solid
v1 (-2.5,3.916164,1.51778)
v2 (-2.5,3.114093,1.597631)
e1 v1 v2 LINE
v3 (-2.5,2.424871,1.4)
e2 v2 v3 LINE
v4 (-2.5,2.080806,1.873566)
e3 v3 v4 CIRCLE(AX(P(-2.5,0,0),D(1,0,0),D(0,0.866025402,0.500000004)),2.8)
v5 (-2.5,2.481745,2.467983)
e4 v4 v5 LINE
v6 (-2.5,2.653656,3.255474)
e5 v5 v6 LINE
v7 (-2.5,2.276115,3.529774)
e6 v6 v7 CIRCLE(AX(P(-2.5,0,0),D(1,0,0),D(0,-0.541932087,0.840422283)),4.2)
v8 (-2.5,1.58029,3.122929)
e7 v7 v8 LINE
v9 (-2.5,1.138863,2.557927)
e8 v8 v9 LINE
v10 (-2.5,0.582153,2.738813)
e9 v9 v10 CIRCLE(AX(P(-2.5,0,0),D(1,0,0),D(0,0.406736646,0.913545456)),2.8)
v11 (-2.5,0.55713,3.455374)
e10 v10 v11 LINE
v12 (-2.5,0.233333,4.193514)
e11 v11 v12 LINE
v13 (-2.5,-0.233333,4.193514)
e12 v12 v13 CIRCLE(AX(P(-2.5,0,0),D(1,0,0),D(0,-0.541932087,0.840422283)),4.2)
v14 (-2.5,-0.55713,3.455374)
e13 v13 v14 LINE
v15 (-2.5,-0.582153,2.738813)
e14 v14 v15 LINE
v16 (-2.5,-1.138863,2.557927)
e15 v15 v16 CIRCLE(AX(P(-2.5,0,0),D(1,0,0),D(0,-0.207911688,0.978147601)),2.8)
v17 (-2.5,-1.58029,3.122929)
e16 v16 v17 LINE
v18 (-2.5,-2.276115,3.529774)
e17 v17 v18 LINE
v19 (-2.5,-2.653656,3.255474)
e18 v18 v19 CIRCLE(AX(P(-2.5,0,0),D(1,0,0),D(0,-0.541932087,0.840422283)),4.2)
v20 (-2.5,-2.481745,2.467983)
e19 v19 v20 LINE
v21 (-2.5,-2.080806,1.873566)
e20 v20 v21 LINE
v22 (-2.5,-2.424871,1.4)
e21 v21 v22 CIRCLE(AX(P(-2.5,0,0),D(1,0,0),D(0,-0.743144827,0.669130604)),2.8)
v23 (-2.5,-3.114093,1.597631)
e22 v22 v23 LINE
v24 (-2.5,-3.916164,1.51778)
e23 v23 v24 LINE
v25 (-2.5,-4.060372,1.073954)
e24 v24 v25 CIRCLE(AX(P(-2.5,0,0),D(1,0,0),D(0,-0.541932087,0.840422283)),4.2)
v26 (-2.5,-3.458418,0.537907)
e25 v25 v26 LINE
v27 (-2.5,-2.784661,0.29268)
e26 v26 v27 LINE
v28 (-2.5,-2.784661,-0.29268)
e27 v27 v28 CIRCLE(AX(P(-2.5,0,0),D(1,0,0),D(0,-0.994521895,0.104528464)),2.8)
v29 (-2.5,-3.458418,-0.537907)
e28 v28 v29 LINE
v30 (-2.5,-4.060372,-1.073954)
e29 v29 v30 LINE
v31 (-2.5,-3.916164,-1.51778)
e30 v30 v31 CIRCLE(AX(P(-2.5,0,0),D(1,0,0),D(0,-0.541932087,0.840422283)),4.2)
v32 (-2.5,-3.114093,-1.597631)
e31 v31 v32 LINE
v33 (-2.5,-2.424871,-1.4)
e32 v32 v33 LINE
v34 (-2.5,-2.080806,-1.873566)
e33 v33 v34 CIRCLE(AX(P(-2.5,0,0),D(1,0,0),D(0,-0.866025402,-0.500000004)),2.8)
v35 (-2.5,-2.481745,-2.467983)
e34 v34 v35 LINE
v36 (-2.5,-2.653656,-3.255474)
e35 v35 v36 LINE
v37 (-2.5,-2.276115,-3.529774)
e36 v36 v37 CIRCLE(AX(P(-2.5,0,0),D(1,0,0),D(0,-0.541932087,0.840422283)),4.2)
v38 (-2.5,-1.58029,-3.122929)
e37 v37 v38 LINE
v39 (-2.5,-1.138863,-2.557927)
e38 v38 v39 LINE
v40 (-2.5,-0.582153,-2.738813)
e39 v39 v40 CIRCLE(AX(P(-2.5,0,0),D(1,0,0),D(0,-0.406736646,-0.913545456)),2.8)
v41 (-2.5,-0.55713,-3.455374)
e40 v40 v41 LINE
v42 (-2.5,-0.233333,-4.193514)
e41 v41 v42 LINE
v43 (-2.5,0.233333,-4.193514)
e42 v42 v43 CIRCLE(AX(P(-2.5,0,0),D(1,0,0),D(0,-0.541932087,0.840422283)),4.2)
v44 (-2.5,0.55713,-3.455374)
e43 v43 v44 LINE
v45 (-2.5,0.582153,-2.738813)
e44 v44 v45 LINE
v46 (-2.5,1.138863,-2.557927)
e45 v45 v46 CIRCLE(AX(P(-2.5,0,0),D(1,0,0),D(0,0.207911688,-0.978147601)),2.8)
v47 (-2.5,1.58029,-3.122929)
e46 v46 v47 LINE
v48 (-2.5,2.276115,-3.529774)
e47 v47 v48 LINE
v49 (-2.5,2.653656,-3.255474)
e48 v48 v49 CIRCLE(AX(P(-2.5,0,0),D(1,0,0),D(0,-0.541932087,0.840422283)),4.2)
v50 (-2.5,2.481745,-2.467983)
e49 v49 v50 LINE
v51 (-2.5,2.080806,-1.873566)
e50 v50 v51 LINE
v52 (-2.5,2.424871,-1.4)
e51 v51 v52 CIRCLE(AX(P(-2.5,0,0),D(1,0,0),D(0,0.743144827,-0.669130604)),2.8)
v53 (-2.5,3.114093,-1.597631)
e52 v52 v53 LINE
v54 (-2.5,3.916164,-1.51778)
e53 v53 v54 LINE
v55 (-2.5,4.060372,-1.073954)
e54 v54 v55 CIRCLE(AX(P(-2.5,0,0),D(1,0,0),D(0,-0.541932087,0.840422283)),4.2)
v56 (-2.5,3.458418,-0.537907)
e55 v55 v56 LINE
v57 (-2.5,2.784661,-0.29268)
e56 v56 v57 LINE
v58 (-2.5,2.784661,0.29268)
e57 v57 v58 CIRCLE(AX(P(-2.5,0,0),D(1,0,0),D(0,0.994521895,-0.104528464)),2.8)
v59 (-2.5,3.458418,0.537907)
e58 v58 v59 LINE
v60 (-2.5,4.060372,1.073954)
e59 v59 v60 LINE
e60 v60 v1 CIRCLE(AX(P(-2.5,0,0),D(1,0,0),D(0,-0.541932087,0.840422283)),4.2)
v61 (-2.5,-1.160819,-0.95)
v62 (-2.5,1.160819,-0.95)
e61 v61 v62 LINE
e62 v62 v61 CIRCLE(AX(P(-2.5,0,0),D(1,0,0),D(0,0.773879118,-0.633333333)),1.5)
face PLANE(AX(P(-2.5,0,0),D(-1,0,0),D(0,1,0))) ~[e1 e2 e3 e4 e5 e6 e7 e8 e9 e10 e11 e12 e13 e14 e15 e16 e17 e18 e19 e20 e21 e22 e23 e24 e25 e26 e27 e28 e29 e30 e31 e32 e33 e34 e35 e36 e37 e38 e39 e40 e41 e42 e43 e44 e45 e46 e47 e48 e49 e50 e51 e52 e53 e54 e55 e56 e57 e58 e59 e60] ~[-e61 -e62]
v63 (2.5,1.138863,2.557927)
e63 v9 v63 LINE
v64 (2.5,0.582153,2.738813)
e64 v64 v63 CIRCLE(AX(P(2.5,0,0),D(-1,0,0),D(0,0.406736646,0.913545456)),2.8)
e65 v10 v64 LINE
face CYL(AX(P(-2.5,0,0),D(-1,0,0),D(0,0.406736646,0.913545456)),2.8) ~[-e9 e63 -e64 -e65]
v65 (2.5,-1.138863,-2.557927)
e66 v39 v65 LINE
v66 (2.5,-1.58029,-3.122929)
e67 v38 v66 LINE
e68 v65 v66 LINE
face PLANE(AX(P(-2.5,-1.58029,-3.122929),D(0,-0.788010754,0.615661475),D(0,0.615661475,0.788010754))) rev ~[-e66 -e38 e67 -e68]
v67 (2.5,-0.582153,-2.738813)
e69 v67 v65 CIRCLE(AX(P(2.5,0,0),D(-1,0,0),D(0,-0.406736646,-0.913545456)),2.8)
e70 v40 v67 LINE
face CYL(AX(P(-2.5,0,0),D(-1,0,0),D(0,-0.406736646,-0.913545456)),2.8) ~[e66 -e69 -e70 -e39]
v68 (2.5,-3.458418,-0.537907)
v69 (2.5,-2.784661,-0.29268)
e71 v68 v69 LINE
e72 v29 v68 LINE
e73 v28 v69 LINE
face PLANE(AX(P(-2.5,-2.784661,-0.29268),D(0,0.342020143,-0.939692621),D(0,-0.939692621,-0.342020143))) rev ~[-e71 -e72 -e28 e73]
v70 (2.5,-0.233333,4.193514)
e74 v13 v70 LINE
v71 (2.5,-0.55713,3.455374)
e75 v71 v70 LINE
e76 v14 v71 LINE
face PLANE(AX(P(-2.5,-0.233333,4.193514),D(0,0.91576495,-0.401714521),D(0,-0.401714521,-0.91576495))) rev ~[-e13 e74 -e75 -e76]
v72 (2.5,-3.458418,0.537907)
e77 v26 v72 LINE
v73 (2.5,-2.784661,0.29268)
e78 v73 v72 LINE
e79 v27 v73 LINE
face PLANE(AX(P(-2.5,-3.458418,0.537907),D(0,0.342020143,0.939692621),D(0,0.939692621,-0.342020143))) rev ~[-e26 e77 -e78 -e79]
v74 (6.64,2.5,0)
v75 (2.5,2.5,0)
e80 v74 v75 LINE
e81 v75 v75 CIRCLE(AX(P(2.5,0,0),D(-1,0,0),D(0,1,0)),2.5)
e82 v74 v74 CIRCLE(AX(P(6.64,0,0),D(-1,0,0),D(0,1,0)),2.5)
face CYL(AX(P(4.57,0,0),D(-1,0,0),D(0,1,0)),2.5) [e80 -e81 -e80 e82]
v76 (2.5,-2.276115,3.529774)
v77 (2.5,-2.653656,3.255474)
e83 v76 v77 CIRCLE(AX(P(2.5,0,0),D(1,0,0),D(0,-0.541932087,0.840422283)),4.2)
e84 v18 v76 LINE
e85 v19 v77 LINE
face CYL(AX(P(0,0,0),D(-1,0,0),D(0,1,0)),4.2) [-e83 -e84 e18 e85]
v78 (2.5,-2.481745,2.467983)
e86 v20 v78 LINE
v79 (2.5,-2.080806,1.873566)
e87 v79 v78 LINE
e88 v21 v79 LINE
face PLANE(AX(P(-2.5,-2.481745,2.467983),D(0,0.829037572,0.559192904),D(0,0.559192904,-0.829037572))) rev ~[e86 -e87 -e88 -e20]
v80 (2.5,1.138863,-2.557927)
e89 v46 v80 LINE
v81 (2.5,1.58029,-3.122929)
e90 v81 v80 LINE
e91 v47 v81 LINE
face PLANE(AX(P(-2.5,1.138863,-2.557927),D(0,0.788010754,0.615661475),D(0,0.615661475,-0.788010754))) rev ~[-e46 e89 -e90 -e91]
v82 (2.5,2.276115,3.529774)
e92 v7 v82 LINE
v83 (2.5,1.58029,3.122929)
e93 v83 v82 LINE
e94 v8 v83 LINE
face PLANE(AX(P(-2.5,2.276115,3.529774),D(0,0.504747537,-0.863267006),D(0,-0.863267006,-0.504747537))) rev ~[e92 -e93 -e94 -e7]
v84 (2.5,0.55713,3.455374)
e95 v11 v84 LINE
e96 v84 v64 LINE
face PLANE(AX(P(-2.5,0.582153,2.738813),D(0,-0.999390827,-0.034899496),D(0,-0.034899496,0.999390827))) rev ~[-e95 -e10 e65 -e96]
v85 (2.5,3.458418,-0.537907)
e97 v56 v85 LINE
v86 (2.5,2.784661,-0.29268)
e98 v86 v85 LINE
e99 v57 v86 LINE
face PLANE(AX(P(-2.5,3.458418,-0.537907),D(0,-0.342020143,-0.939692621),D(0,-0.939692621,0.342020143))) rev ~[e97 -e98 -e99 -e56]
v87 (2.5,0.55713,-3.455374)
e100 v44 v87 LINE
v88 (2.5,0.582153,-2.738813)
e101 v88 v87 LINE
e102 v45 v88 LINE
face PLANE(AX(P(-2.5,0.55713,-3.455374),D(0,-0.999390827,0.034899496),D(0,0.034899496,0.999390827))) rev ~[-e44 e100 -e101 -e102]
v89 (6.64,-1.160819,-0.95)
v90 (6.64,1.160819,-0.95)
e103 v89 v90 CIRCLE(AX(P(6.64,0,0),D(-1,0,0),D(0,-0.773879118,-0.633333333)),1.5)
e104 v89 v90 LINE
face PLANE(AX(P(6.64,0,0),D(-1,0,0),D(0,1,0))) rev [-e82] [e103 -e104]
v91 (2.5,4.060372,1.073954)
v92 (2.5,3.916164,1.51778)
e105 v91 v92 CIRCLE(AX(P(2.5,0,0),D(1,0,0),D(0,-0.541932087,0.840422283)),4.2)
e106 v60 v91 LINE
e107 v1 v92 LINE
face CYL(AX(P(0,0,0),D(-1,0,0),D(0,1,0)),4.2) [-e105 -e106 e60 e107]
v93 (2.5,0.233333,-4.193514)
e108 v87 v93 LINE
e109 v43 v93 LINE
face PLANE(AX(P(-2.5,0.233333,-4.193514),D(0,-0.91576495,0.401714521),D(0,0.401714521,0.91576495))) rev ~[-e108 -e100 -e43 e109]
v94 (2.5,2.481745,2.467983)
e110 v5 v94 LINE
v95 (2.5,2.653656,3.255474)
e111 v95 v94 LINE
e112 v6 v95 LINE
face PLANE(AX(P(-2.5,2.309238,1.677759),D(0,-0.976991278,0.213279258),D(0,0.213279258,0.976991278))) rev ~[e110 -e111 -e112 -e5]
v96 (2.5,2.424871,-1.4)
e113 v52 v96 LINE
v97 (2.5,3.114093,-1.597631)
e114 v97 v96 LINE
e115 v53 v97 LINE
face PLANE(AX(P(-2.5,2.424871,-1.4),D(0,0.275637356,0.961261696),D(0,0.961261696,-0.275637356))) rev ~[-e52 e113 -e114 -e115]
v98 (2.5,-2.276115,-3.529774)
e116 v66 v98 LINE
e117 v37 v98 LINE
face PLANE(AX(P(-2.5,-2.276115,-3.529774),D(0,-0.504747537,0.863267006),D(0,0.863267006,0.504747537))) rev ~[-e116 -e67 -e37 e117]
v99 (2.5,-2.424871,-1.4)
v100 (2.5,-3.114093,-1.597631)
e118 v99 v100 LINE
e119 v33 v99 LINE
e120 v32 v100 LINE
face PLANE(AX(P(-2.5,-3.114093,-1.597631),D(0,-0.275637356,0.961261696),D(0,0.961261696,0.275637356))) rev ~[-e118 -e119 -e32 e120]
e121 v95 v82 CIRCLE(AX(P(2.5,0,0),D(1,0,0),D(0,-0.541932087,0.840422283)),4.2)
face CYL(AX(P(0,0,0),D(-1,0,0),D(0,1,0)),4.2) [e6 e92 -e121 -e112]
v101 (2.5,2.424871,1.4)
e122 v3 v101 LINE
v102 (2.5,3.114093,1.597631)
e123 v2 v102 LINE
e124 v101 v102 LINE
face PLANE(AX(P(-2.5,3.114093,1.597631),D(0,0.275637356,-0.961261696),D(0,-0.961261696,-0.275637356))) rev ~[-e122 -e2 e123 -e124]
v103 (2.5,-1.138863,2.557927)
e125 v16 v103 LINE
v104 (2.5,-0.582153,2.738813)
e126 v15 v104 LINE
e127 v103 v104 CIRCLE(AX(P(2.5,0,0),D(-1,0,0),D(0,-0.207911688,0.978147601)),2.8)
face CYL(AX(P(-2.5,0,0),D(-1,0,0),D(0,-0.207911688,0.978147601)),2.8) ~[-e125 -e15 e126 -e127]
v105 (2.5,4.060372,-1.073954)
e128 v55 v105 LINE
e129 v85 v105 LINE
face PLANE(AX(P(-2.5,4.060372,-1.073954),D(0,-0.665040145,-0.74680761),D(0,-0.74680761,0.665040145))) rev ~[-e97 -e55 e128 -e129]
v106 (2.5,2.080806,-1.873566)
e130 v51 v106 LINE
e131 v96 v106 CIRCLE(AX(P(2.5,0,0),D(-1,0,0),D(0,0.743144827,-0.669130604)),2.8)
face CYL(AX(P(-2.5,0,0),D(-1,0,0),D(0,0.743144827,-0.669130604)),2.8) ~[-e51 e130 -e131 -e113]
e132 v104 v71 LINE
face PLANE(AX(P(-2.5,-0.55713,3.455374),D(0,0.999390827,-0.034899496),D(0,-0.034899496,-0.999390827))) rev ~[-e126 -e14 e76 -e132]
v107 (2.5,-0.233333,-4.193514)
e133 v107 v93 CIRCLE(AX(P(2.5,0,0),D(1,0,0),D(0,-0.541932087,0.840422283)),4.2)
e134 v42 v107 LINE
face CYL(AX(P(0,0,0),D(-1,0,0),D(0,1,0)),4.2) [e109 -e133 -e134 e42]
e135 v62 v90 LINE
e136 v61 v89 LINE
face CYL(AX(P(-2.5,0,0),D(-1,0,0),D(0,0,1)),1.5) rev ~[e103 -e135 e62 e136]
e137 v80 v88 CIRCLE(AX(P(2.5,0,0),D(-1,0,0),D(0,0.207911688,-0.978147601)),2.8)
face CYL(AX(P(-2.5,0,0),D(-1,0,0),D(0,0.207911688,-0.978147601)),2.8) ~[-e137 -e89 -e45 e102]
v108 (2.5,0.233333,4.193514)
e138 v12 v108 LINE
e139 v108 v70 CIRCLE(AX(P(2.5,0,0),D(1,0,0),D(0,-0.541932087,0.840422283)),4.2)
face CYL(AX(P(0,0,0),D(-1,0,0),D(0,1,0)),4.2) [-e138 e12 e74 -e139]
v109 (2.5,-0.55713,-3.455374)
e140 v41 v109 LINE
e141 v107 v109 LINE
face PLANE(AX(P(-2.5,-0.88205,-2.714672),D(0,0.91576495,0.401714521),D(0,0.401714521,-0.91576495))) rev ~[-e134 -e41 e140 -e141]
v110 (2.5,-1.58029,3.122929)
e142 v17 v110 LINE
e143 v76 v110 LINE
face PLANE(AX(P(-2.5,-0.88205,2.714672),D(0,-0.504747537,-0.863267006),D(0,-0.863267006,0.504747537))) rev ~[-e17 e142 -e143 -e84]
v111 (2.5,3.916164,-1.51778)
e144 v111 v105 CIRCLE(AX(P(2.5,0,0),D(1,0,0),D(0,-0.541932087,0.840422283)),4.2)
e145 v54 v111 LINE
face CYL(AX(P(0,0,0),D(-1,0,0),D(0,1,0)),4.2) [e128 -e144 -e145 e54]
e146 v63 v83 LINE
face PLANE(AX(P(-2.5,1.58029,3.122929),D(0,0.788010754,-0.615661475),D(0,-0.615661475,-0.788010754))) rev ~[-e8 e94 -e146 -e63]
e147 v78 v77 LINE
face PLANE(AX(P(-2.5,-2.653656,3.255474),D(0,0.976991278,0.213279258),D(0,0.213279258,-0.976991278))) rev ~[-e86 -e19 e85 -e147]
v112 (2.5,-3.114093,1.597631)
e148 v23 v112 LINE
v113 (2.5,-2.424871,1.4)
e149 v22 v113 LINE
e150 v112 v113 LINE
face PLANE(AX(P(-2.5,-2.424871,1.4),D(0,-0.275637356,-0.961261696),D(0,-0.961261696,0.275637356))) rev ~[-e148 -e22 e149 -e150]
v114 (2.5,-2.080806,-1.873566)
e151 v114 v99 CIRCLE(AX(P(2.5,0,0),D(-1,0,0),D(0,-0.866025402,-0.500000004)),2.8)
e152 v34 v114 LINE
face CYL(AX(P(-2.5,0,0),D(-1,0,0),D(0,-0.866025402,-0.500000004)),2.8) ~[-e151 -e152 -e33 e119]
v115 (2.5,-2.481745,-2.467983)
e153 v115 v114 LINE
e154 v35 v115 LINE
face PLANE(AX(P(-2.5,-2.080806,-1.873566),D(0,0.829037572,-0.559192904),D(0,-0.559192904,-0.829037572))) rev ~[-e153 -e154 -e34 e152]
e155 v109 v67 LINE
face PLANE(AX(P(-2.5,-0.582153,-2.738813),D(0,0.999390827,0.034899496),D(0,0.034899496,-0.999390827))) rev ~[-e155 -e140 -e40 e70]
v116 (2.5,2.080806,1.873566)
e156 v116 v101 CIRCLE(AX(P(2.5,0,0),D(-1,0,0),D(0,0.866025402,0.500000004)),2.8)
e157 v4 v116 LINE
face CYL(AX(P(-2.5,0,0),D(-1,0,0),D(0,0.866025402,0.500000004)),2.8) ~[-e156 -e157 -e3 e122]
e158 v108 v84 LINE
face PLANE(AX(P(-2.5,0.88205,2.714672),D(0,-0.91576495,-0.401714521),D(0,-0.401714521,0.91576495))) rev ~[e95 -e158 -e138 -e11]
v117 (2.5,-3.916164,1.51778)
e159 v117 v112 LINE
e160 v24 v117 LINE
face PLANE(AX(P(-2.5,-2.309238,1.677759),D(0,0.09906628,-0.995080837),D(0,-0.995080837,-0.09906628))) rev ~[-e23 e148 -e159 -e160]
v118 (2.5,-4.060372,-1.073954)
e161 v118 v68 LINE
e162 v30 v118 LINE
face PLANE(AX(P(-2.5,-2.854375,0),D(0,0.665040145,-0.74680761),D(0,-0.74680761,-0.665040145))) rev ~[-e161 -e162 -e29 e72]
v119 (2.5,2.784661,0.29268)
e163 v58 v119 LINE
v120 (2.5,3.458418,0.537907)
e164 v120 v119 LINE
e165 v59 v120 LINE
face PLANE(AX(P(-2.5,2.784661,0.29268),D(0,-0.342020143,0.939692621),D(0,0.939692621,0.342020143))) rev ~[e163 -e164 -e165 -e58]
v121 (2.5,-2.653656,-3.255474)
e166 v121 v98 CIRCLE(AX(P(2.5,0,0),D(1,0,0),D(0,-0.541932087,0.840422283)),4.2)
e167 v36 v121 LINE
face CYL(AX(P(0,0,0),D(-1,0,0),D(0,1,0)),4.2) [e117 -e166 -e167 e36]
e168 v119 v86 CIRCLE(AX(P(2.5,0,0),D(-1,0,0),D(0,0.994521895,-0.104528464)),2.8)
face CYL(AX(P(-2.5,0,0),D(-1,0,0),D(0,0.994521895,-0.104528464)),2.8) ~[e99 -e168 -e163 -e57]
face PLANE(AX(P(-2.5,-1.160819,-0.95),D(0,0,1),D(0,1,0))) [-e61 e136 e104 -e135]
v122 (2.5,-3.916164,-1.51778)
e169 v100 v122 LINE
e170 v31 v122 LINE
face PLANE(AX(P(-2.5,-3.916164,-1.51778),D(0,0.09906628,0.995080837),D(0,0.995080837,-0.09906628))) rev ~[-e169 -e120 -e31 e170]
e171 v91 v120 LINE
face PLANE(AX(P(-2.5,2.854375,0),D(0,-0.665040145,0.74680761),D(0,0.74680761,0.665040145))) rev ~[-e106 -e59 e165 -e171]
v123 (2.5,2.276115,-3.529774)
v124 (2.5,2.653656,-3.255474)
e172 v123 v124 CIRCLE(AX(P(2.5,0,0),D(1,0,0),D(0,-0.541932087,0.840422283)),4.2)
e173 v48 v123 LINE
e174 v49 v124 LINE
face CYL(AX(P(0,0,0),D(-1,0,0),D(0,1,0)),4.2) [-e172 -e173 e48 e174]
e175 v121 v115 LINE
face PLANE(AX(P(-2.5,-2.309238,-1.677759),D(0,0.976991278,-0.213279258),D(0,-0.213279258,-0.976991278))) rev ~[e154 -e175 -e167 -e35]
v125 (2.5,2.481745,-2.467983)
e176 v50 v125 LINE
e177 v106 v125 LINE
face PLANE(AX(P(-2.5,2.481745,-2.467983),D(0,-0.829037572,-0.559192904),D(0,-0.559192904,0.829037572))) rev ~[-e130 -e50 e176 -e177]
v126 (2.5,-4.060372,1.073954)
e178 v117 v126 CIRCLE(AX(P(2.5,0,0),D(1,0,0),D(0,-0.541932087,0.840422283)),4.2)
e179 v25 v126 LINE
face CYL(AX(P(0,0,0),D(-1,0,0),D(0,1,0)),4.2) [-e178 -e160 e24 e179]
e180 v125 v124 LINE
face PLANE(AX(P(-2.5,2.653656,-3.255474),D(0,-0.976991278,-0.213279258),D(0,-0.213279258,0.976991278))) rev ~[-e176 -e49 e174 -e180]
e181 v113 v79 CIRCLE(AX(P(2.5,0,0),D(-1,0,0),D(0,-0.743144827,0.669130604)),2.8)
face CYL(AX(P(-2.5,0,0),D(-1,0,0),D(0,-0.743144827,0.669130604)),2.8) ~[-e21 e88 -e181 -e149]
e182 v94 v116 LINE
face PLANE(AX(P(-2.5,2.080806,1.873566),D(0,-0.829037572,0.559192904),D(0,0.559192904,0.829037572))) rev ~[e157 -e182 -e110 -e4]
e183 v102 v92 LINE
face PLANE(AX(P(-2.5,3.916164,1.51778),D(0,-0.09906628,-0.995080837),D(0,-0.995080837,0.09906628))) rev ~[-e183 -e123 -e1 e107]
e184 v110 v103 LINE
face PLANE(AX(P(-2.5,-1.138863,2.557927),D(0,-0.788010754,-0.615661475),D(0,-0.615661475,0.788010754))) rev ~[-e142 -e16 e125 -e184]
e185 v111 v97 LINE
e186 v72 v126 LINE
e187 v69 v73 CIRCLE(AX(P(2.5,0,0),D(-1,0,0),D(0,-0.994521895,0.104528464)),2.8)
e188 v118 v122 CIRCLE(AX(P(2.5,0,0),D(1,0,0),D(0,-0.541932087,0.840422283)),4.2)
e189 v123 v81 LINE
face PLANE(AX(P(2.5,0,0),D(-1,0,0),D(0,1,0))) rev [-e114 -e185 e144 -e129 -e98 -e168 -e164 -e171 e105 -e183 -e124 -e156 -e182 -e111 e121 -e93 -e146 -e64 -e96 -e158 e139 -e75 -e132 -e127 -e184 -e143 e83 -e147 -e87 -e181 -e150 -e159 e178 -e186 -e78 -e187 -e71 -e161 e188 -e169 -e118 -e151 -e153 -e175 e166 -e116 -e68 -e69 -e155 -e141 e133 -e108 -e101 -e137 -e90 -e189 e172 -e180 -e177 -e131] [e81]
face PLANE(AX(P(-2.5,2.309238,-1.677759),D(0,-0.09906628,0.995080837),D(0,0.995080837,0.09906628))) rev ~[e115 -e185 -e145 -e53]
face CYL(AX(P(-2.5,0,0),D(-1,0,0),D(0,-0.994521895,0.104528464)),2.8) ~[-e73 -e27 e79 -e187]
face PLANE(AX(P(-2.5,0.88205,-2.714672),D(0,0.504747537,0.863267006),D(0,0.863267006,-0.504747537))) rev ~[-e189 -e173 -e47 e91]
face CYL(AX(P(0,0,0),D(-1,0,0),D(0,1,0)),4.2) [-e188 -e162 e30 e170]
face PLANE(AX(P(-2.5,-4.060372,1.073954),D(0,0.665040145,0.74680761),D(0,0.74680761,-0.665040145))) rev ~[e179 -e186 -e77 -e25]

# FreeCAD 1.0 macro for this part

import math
import FreeCAD as App
import Part
import Sketcher

V = App.Vector
Q = App.Units.Quantity

doc = App.newDocument("Part")
body = doc.addObject("PartDesign::Body", "Body")

# Sketch on XY plane
sketch1 = body.newObject("Sketcher::SketchObject", "Sketch")
sketch1.AttachmentSupport = (doc.getObject("XY_Plane"), [""])
sketch1.MapMode = "FlatFace"
sketch1.addGeometry([
    Part.LineSegment(V(2.5, 4.2, 0), V(2.5, 0, 0)),
    Part.LineSegment(V(2.5, 0, 0), V(-2.5, 0, 0)),
    Part.LineSegment(V(-2.5, 0, 0), V(-2.5, 4.2, 0)),
    Part.LineSegment(V(-2.5, 4.2, 0), V(2.5, 4.2, 0)),
], False)
sketch1.addConstraint([
    Sketcher.Constraint("Coincident", 0, 2, 1, 1),
    Sketcher.Constraint("Coincident", 1, 2, 2, 1),
    Sketcher.Constraint("Coincident", 2, 2, 3, 1),
    Sketcher.Constraint("Coincident", 3, 2, 0, 1),
    Sketcher.Constraint("Vertical", 0),
    Sketcher.Constraint("Horizontal", 1),
    Sketcher.Constraint("Vertical", 2),
    Sketcher.Constraint("Horizontal", 3),
    Sketcher.Constraint("Symmetric", 0, 2, 1, 2, -1, 1),
    Sketcher.Constraint("DistanceX", 1, 2, 1, 1, Q("5 mm")),
    Sketcher.Constraint("DistanceY", 0, 2, 0, 1, Q("4.2 mm")),
])
revolution = body.newObject("PartDesign::Revolution", "Revolution")
revolution.Profile = sketch1
revolution.ReferenceAxis = (sketch1, ["H_Axis"])
revolution.Angle = 360

# Sketch on YZ plane
sketch2 = body.newObject("Sketcher::SketchObject", "Sketch001")
sketch2.AttachmentSupport = (doc.getObject("YZ_Plane"), [""])
sketch2.MapMode = "FlatFace"
sketch2.AttachmentOffset = App.Placement(V(0, 0, -2.5), App.Rotation())
sketch2.addGeometry([
    Part.LineSegment(V(-0.2, 4.2, 0), V(-0.9, 2.7, 0)),
    Part.LineSegment(V(-0.9, 2.7, 0), V(-2.3, 3.5, 0)),
    Part.ArcOfCircle(Part.Circle(V(0, 0, 0), V(0, 0, 1), 4.2), math.radians(93), math.radians(123)),
], False)
sketch2.addConstraint([
    Sketcher.Constraint("Coincident", 0, 2, 1, 1),
    Sketcher.Constraint("Coincident", 1, 2, 2, 2),
    Sketcher.Constraint("Coincident", 2, 1, 0, 1),
    Sketcher.Constraint("Coincident", 2, 3, -1, 1),
    Sketcher.Constraint("Equal", 0, 1),
    Sketcher.Constraint("Radius", 2, Q("4.2 mm")),
    Sketcher.Constraint("DistanceY", 0, 2, 1, 2, Q("0.815102 mm")),
    Sketcher.Constraint("Distance", 0, Q("1.614871 mm")),
    Sketcher.Constraint("DistanceX", 0, 2, -1, 1, Q("0.88205 mm")),
])
pocket1 = body.newObject("PartDesign::Pocket", "Pocket")
pocket1.Profile = sketch2
pocket1.Type = "ThroughAll"
pocket1.Reversed = True

# Sketch on YZ plane
sketch3 = body.newObject("Sketcher::SketchObject", "Sketch002")
sketch3.AttachmentSupport = (doc.getObject("YZ_Plane"), [""])
sketch3.MapMode = "FlatFace"
sketch3.AttachmentOffset = App.Placement(V(0, 0, -2.5), App.Rotation())
sketch3.addGeometry([
    Part.LineSegment(V(-1.1, 2.6, 0), V(-1.6, 3.1, 0)),  # 0
    Part.LineSegment(V(-1.6, 3.1, 0), V(-0.9, 2.7, 0)),  # 1
    Part.LineSegment(V(-0.9, 2.7, 0), V(-0.6, 3.5, 0)),  # 2
    Part.LineSegment(V(-0.6, 3.5, 0), V(-0.6, 2.7, 0)),  # 3
    Part.ArcOfCircle(Part.Circle(V(0, 0, 0), V(0, 0, 1), 2.8), math.radians(102), math.radians(114)),  # 4
], False)
sketch3.addConstraint([
    Sketcher.Constraint("Coincident", 0, 2, 1, 1),
    Sketcher.Constraint("Coincident", 1, 2, 2, 1),
    Sketcher.Constraint("Coincident", 2, 2, 3, 1),
    Sketcher.Constraint("Coincident", 3, 2, 4, 1),
    Sketcher.Constraint("Coincident", 4, 2, 0, 1),
    Sketcher.Constraint("Coincident", 4, 3, -1, 1),
    Sketcher.Constraint("Equal", 1, 2),
    Sketcher.Constraint("Equal", 0, 3),
    Sketcher.Constraint("Radius", 4, Q("2.8 mm")),
    Sketcher.Constraint("Angle", 0, Q("128 deg")),
    Sketcher.Constraint("Angle", 3, Q("-92 deg")),
    Sketcher.Constraint("DistanceY", 4, 2, 0, 2, Q("0.565001 mm")),
    Sketcher.Constraint("DistanceY", 1, 2, 2, 2, Q("0.740702 mm")),
    Sketcher.Constraint("DistanceX", 0, 2, -1, 1, Q("1.58029 mm")),
    Sketcher.Constraint("DistanceX", 1, 2, -1, 1, Q("0.88205 mm")),
])
pocket2 = body.newObject("PartDesign::Pocket", "Pocket001")
pocket2.Profile = sketch3
pocket2.Type = "ThroughAll"
pocket2.Reversed = True

# Sketch on YZ plane
sketch4 = body.newObject("Sketcher::SketchObject", "Sketch003")
sketch4.AttachmentSupport = (doc.getObject("YZ_Plane"), [""])
sketch4.MapMode = "FlatFace"
sketch4.AttachmentOffset = App.Placement(V(0, 0, -2.5), App.Rotation())
sketch4.addGeometry([
    Part.LineSegment(V(-2.7, 3.3, 0), V(-2.3, 1.7, 0)),
    Part.LineSegment(V(-2.3, 1.7, 0), V(-3.9, 1.5, 0)),
    Part.ArcOfCircle(Part.Circle(V(0, 0, 0), V(0, 0, 1), 4.2), math.radians(129), math.radians(159)),
], False)
sketch4.addConstraint([
    Sketcher.Constraint("Coincident", 0, 2, 1, 1),
    Sketcher.Constraint("Coincident", 1, 2, 2, 2),
    Sketcher.Constraint("Coincident", 2, 1, 0, 1),
    Sketcher.Constraint("Coincident", 2, 3, -1, 1),
    Sketcher.Constraint("Equal", 0, 1),
    Sketcher.Constraint("Radius", 2, Q("4.2 mm")),
    Sketcher.Constraint("Distance", 0, Q("1.614871 mm")),
    Sketcher.Constraint("DistanceY", -1, 1, 0, 2, Q("1.677759 mm")),
    Sketcher.Constraint("DistanceY", -1, 1, 1, 2, Q("1.51778 mm")),
])
pocket3 = body.newObject("PartDesign::Pocket", "Pocket002")
pocket3.Profile = sketch4
pocket3.Type = "ThroughAll"
pocket3.Reversed = True

# Sketch on YZ plane
sketch5 = body.newObject("Sketcher::SketchObject", "Sketch004")
sketch5.AttachmentSupport = (doc.getObject("YZ_Plane"), [""])
sketch5.MapMode = "FlatFace"
sketch5.AttachmentOffset = App.Placement(V(0, 0, -2.5), App.Rotation())
sketch5.addGeometry([
    Part.LineSegment(V(-2.4, 1.4, 0), V(-3.1, 1.6, 0)),  # 0
    Part.LineSegment(V(-3.1, 1.6, 0), V(-2.3, 1.7, 0)),  # 1
    Part.LineSegment(V(-2.3, 1.7, 0), V(-2.5, 2.5, 0)),  # 2
    Part.LineSegment(V(-2.5, 2.5, 0), V(-2.1, 1.9, 0)),  # 3
    Part.ArcOfCircle(Part.Circle(V(0, 0, 0), V(0, 0, 1), 2.8), math.radians(138), math.radians(150)),  # 4
], False)
sketch5.addConstraint([
    Sketcher.Constraint("Coincident", 0, 2, 1, 1),
    Sketcher.Constraint("Coincident", 1, 2, 2, 1),
    Sketcher.Constraint("Coincident", 2, 2, 3, 1),
    Sketcher.Constraint("Coincident", 3, 2, 4, 1),
    Sketcher.Constraint("Coincident", 4, 2, 0, 1),
    Sketcher.Constraint("Coincident", 4, 3, -1, 1),
    Sketcher.Constraint("Equal", 1, 2),
    Sketcher.Constraint("Equal", 0, 3),
    Sketcher.Constraint("Radius", 4, Q("2.8 mm")),
    Sketcher.Constraint("Angle", 0, Q("164 deg")),
    Sketcher.Constraint("Angle", 3, Q("-56 deg")),
    Sketcher.Constraint("DistanceY", -1, 1, 4, 2, Q("1.4 mm")),
    Sketcher.Constraint("DistanceY", -1, 1, 0, 2, Q("1.597631 mm")),
    Sketcher.Constraint("DistanceY", -1, 1, 1, 2, Q("1.677759 mm")),
    Sketcher.Constraint("Distance", 1, Q("0.808834 mm")),
])
pocket4 = body.newObject("PartDesign::Pocket", "Pocket003")
pocket4.Profile = sketch5
pocket4.Type = "ThroughAll"
pocket4.Reversed = True

# Sketch on YZ plane
sketch6 = body.newObject("Sketcher::SketchObject", "Sketch005")
sketch6.AttachmentSupport = (doc.getObject("YZ_Plane"), [""])
sketch6.MapMode = "FlatFace"
sketch6.AttachmentOffset = App.Placement(V(0, 0, -2.5), App.Rotation())
sketch6.addGeometry([
    Part.LineSegment(V(-4.1, 1.1, 0), V(-2.9, 0, 0)),
    Part.LineSegment(V(-2.9, 0, 0), V(-4.1, -1.1, 0)),
    Part.ArcOfCircle(Part.Circle(V(0, 0, 0), V(0, 0, 1), 4.2), math.radians(165), math.radians(195)),
], False)
sketch6.addConstraint([
    Sketcher.Constraint("Coincident", 0, 2, 1, 1),
    Sketcher.Constraint("Coincident", 1, 2, 2, 2),
    Sketcher.Constraint("Coincident", 2, 1, 0, 1),
    Sketcher.Constraint("Coincident", 2, 3, -1, 1),
    Sketcher.Constraint("PointOnObject", 0, 2, -1),
    Sketcher.Constraint("Vertical", 1, 2, 2, 1),
    Sketcher.Constraint("Radius", 2, Q("4.2 mm")),
    Sketcher.Constraint("Distance", 0, Q("1.614871 mm")),
    Sketcher.Constraint("DistanceX", 0, 2, -1, 1, Q("2.854375 mm")),
])
pocket5 = body.newObject("PartDesign::Pocket", "Pocket004")
pocket5.Profile = sketch6
pocket5.Type = "ThroughAll"
pocket5.Reversed = True

# Sketch on YZ plane
sketch7 = body.newObject("Sketcher::SketchObject", "Sketch006")
sketch7.AttachmentSupport = (doc.getObject("YZ_Plane"), [""])
sketch7.MapMode = "FlatFace"
sketch7.AttachmentOffset = App.Placement(V(0, 0, -2.5), App.Rotation())
sketch7.addGeometry([
    Part.LineSegment(V(-2.8, -0.3, 0), V(-3.5, -0.5, 0)),  # 0
    Part.LineSegment(V(-3.5, -0.5, 0), V(-2.9, 0, 0)),  # 1
    Part.LineSegment(V(-2.9, 0, 0), V(-3.5, 0.5, 0)),  # 2
    Part.LineSegment(V(-3.5, 0.5, 0), V(-2.8, 0.3, 0)),  # 3
    Part.ArcOfCircle(Part.Circle(V(0, 0, 0), V(0, 0, 1), 2.8), math.radians(174), math.radians(186)),  # 4
], False)
sketch7.addConstraint([
    Sketcher.Constraint("Coincident", 0, 2, 1, 1),
    Sketcher.Constraint("Coincident", 1, 2, 2, 1),
    Sketcher.Constraint("Coincident", 2, 2, 3, 1),
    Sketcher.Constraint("Coincident", 3, 2, 4, 1),
    Sketcher.Constraint("Coincident", 4, 2, 0, 1),
    Sketcher.Constraint("Coincident", 4, 3, -1, 1),
    Sketcher.Constraint("Symmetric", 0, 2, 2, 2, -1),
    Sketcher.Constraint("PointOnObject", 1, 2, -1),
    Sketcher.Constraint("Vertical", 3, 2, 4, 2),
    Sketcher.Constraint("Radius", 4, Q("2.8 mm")),
    Sketcher.Constraint("Angle", 0, Q("-160 deg")),
    Sketcher.Constraint("DistanceX", 0, 2, -1, 1, Q("3.458418 mm")),
    Sketcher.Constraint("DistanceX", 3, 2, -1, 1, Q("2.784661 mm")),
    Sketcher.Constraint("Distance", 1, Q("0.808834 mm")),
])
pocket6 = body.newObject("PartDesign::Pocket", "Pocket005")
pocket6.Profile = sketch7
pocket6.Type = "ThroughAll"
pocket6.Reversed = True

# Sketch on YZ plane
sketch8 = body.newObject("Sketcher::SketchObject", "Sketch007")
sketch8.AttachmentSupport = (doc.getObject("YZ_Plane"), [""])
sketch8.MapMode = "FlatFace"
sketch8.AttachmentOffset = App.Placement(V(0, 0, -2.5), App.Rotation())
sketch8.addGeometry([
    Part.LineSegment(V(-3.9, -1.5, 0), V(-2.3, -1.7, 0)),
    Part.LineSegment(V(-2.3, -1.7, 0), V(-2.7, -3.3, 0)),
    Part.ArcOfCircle(Part.Circle(V(0, 0, 0), V(0, 0, 1), 4.2), math.radians(-159), math.radians(-129)),
], False)
sketch8.addConstraint([
    Sketcher.Constraint("Coincident", 0, 2, 1, 1),
    Sketcher.Constraint("Coincident", 1, 2, 2, 2),
    Sketcher.Constraint("Coincident", 2, 1, 0, 1),
    Sketcher.Constraint("Coincident", 2, 3, -1, 1),
    Sketcher.Constraint("Equal", 0, 1),
    Sketcher.Constraint("Radius", 2, Q("4.2 mm")),
    Sketcher.Constraint("Distance", 0, Q("1.614871 mm")),
    Sketcher.Constraint("DistanceY", 0, 2, -1, 1, Q("1.677759 mm")),
    Sketcher.Constraint("DistanceY", 2, 1, -1, 1, Q("1.51778 mm")),
])
pocket7 = body.newObject("PartDesign::Pocket", "Pocket006")
pocket7.Profile = sketch8
pocket7.Type = "ThroughAll"
pocket7.Reversed = True

# Sketch on YZ plane
sketch9 = body.newObject("Sketcher::SketchObject", "Sketch008")
sketch9.AttachmentSupport = (doc.getObject("YZ_Plane"), [""])
sketch9.MapMode = "FlatFace"
sketch9.AttachmentOffset = App.Placement(V(0, 0, -2.5), App.Rotation())
sketch9.addGeometry([
    Part.LineSegment(V(-2.1, -1.9, 0), V(-2.5, -2.5, 0)),  # 0
    Part.LineSegment(V(-2.5, -2.5, 0), V(-2.3, -1.7, 0)),  # 1
    Part.LineSegment(V(-2.3, -1.7, 0), V(-3.1, -1.6, 0)),  # 2
    Part.LineSegment(V(-3.1, -1.6, 0), V(-2.4, -1.4, 0)),  # 3
    Part.ArcOfCircle(Part.Circle(V(0, 0, 0), V(0, 0, 1), 2.8), math.radians(-150), math.radians(-138)),  # 4
], False)
sketch9.addConstraint([
    Sketcher.Constraint("Coincident", 0, 2, 1, 1),
    Sketcher.Constraint("Coincident", 1, 2, 2, 1),
    Sketcher.Constraint("Coincident", 2, 2, 3, 1),
    Sketcher.Constraint("Coincident", 3, 2, 4, 1),
    Sketcher.Constraint("Coincident", 4, 2, 0, 1),
    Sketcher.Constraint("Coincident", 4, 3, -1, 1),
    Sketcher.Constraint("Equal", 1, 2),
    Sketcher.Constraint("Equal", 0, 3),
    Sketcher.Constraint("Radius", 4, Q("2.8 mm")),
    Sketcher.Constraint("Angle", 0, Q("-124 deg")),
    Sketcher.Constraint("Angle", 3, Q("16 deg")),
    Sketcher.Constraint("DistanceY", 3, 2, -1, 1, Q("1.4 mm")),
    Sketcher.Constraint("DistanceY", 1, 2, -1, 1, Q("1.677759 mm")),
    Sketcher.Constraint("DistanceY", 2, 2, -1, 1, Q("1.597631 mm")),
    Sketcher.Constraint("Distance", 1, Q("0.808834 mm")),
])
pocket8 = body.newObject("PartDesign::Pocket", "Pocket007")
pocket8.Profile = sketch9
pocket8.Type = "ThroughAll"
pocket8.Reversed = True

# Sketch on YZ plane
sketch10 = body.newObject("Sketcher::SketchObject", "Sketch009")
sketch10.AttachmentSupport = (doc.getObject("YZ_Plane"), [""])
sketch10.MapMode = "FlatFace"
sketch10.AttachmentOffset = App.Placement(V(0, 0, -2.5), App.Rotation())
sketch10.addGeometry([
    Part.LineSegment(V(-2.3, -3.5, 0), V(-0.9, -2.7, 0)),
    Part.LineSegment(V(-0.9, -2.7, 0), V(-0.2, -4.2, 0)),
    Part.ArcOfCircle(Part.Circle(V(0, 0, 0), V(0, 0, 1), 4.2), math.radians(-123), math.radians(-93)),
], False)
sketch10.addConstraint([
    Sketcher.Constraint("Coincident", 0, 2, 1, 1),
    Sketcher.Constraint("Coincident", 1, 2, 2, 2),
    Sketcher.Constraint("Coincident", 2, 1, 0, 1),
    Sketcher.Constraint("Coincident", 2, 3, -1, 1),
    Sketcher.Constraint("Equal", 0, 1),
    Sketcher.Constraint("Radius", 2, Q("4.2 mm")),
    Sketcher.Constraint("DistanceY", 2, 1, 0, 2, Q("0.815102 mm")),
    Sketcher.Constraint("Distance", 0, Q("1.614871 mm")),
    Sketcher.Constraint("DistanceX", 0, 2, -1, 1, Q("0.88205 mm")),
])
pocket9 = body.newObject("PartDesign::Pocket", "Pocket008")
pocket9.Profile = sketch10
pocket9.Type = "ThroughAll"
pocket9.Reversed = True

# Sketch on YZ plane
sketch11 = body.newObject("Sketcher::SketchObject", "Sketch010")
sketch11.AttachmentSupport = (doc.getObject("YZ_Plane"), [""])
sketch11.MapMode = "FlatFace"
sketch11.AttachmentOffset = App.Placement(V(0, 0, -2.5), App.Rotation())
sketch11.addGeometry([
    Part.LineSegment(V(-0.6, -2.7, 0), V(-0.6, -3.5, 0)),  # 0
    Part.LineSegment(V(-0.6, -3.5, 0), V(-0.9, -2.7, 0)),  # 1
    Part.LineSegment(V(-0.9, -2.7, 0), V(-1.6, -3.1, 0)),  # 2
    Part.LineSegment(V(-1.6, -3.1, 0), V(-1.1, -2.6, 0)),  # 3
    Part.ArcOfCircle(Part.Circle(V(0, 0, 0), V(0, 0, 1), 2.8), math.radians(-114), math.radians(-102)),  # 4
], False)
sketch11.addConstraint([
    Sketcher.Constraint("Coincident", 0, 2, 1, 1),
    Sketcher.Constraint("Coincident", 1, 2, 2, 1),
    Sketcher.Constraint("Coincident", 2, 2, 3, 1),
    Sketcher.Constraint("Coincident", 3, 2, 4, 1),
    Sketcher.Constraint("Coincident", 4, 2, 0, 1),
    Sketcher.Constraint("Coincident", 4, 3, -1, 1),
    Sketcher.Constraint("Equal", 1, 2),
    Sketcher.Constraint("Equal", 0, 3),
    Sketcher.Constraint("Radius", 4, Q("2.8 mm")),
    Sketcher.Constraint("Angle", 0, Q("-88 deg")),
    Sketcher.Constraint("Angle", 3, Q("52 deg")),
    Sketcher.Constraint("DistanceY", 2, 2, 3, 2, Q("0.565001 mm")),
    Sketcher.Constraint("DistanceY", 0, 2, 1, 2, Q("0.740702 mm")),
    Sketcher.Constraint("DistanceX", 0, 2, -1, 1, Q("0.55713 mm")),
    Sketcher.Constraint("DistanceX", 1, 2, -1, 1, Q("0.88205 mm")),
])
pocket10 = body.newObject("PartDesign::Pocket", "Pocket009")
pocket10.Profile = sketch11
pocket10.Type = "ThroughAll"
pocket10.Reversed = True

# Sketch on YZ plane
sketch12 = body.newObject("Sketcher::SketchObject", "Sketch011")
sketch12.AttachmentSupport = (doc.getObject("YZ_Plane"), [""])
sketch12.MapMode = "FlatFace"
sketch12.AttachmentOffset = App.Placement(V(0, 0, -2.5), App.Rotation())
sketch12.addGeometry([
    Part.LineSegment(V(0.2, -4.2, 0), V(0.9, -2.7, 0)),
    Part.LineSegment(V(0.9, -2.7, 0), V(2.3, -3.5, 0)),
    Part.ArcOfCircle(Part.Circle(V(0, 0, 0), V(0, 0, 1), 4.2), math.radians(-87), math.radians(-57)),
], False)
sketch12.addConstraint([
    Sketcher.Constraint("Coincident", 0, 2, 1, 1),
    Sketcher.Constraint("Coincident", 1, 2, 2, 2),
    Sketcher.Constraint("Coincident", 2, 1, 0, 1),
    Sketcher.Constraint("Coincident", 2, 3, -1, 1),
    Sketcher.Constraint("Equal", 0, 1),
    Sketcher.Constraint("Radius", 2, Q("4.2 mm")),
    Sketcher.Constraint("DistanceY", 1, 2, 0, 2, Q("0.815102 mm")),
    Sketcher.Constraint("Distance", 0, Q("1.614871 mm")),
    Sketcher.Constraint("DistanceX", -1, 1, 0, 2, Q("0.88205 mm")),
])
pocket11 = body.newObject("PartDesign::Pocket", "Pocket010")
pocket11.Profile = sketch12
pocket11.Type = "ThroughAll"
pocket11.Reversed = True

# Sketch on YZ plane
sketch13 = body.newObject("Sketcher::SketchObject", "Sketch012")
sketch13.AttachmentSupport = (doc.getObject("YZ_Plane"), [""])
sketch13.MapMode = "FlatFace"
sketch13.AttachmentOffset = App.Placement(V(0, 0, -2.5), App.Rotation())
sketch13.addGeometry([
    Part.LineSegment(V(0.9, -2.7, 0), V(0.6, -3.5, 0)),  # 0
    Part.LineSegment(V(0.6, -3.5, 0), V(0.6, -2.7, 0)),  # 1
    Part.ArcOfCircle(Part.Circle(V(0, 0, 0), V(0, 0, 1), 2.8), math.radians(-78), math.radians(-66)),  # 2
    Part.LineSegment(V(1.1, -2.6, 0), V(1.6, -3.1, 0)),  # 3
    Part.LineSegment(V(1.6, -3.1, 0), V(0.9, -2.7, 0)),  # 4
], False)
sketch13.addConstraint([
    Sketcher.Constraint("Coincident", 0, 2, 1, 1),
    Sketcher.Constraint("Coincident", 1, 2, 2, 1),
    Sketcher.Constraint("Coincident", 2, 2, 3, 1),
    Sketcher.Constraint("Coincident", 3, 2, 4, 1),
    Sketcher.Constraint("Coincident", 4, 2, 0, 1),
    Sketcher.Constraint("Coincident", 2, 3, -1, 1),
    Sketcher.Constraint("Equal", 1, 3),
    Sketcher.Constraint("Equal", 0, 4),
    Sketcher.Constraint("Radius", 2, Q("2.8 mm")),
    Sketcher.Constraint("Angle", 1, Q("88 deg")),
    Sketcher.Constraint("Angle", 3, Q("-52 deg")),
    Sketcher.Constraint("DistanceY", 3, 2, 2, 2, Q("0.565001 mm")),
    Sketcher.Constraint("DistanceY", 0, 2, 4, 2, Q("0.740702 mm")),
    Sketcher.Constraint("DistanceX", -1, 1, 0, 2, Q("0.55713 mm")),
    Sketcher.Constraint("DistanceX", -1, 1, 3, 2, Q("1.58029 mm")),
])
pocket12 = body.newObject("PartDesign::Pocket", "Pocket011")
pocket12.Profile = sketch13
pocket12.Type = "ThroughAll"
pocket12.Reversed = True

# Sketch on YZ plane
sketch14 = body.newObject("Sketcher::SketchObject", "Sketch013")
sketch14.AttachmentSupport = (doc.getObject("YZ_Plane"), [""])
sketch14.MapMode = "FlatFace"
sketch14.AttachmentOffset = App.Placement(V(0, 0, -2.5), App.Rotation())
sketch14.addGeometry([
    Part.LineSegment(V(2.7, -3.3, 0), V(2.3, -1.7, 0)),
    Part.LineSegment(V(2.3, -1.7, 0), V(3.9, -1.5, 0)),
    Part.ArcOfCircle(Part.Circle(V(0, 0, 0), V(0, 0, 1), 4.2), math.radians(-51), math.radians(-21)),
], False)
sketch14.addConstraint([
    Sketcher.Constraint("Coincident", 0, 2, 1, 1),
    Sketcher.Constraint("Coincident", 1, 2, 2, 2),
    Sketcher.Constraint("Coincident", 2, 1, 0, 1),
    Sketcher.Constraint("Coincident", 2, 3, -1, 1),
    Sketcher.Constraint("Equal", 0, 1),
    Sketcher.Constraint("Radius", 2, Q("4.2 mm")),
    Sketcher.Constraint("Distance", 0, Q("1.614871 mm")),
    Sketcher.Constraint("DistanceY", 0, 2, -1, 1, Q("1.677759 mm")),
    Sketcher.Constraint("DistanceY", 1, 2, -1, 1, Q("1.51778 mm")),
])
pocket13 = body.newObject("PartDesign::Pocket", "Pocket012")
pocket13.Profile = sketch14
pocket13.Type = "ThroughAll"
pocket13.Reversed = True

# Sketch on YZ plane
sketch15 = body.newObject("Sketcher::SketchObject", "Sketch014")
sketch15.AttachmentSupport = (doc.getObject("YZ_Plane"), [""])
sketch15.MapMode = "FlatFace"
sketch15.AttachmentOffset = App.Placement(V(0, 0, -2.5), App.Rotation())
sketch15.addGeometry([
    Part.LineSegment(V(2.3, -1.7, 0), V(2.5, -2.5, 0)),  # 0
    Part.LineSegment(V(2.5, -2.5, 0), V(2.1, -1.9, 0)),  # 1
    Part.ArcOfCircle(Part.Circle(V(0, 0, 0), V(0, 0, 1), 2.8), math.radians(-42), math.radians(-30)),  # 2
    Part.LineSegment(V(2.4, -1.4, 0), V(3.1, -1.6, 0)),  # 3
    Part.LineSegment(V(3.1, -1.6, 0), V(2.3, -1.7, 0)),  # 4
], False)
sketch15.addConstraint([
    Sketcher.Constraint("Coincident", 0, 2, 1, 1),
    Sketcher.Constraint("Coincident", 1, 2, 2, 1),
    Sketcher.Constraint("Coincident", 2, 2, 3, 1),
    Sketcher.Constraint("Coincident", 3, 2, 4, 1),
    Sketcher.Constraint("Coincident", 4, 2, 0, 1),
    Sketcher.Constraint("Coincident", 2, 3, -1, 1),
    Sketcher.Constraint("Equal", 1, 3),
    Sketcher.Constraint("Equal", 0, 4),
    Sketcher.Constraint("Radius", 2, Q("2.8 mm")),
    Sketcher.Constraint("Angle", 1, Q("124 deg")),
    Sketcher.Constraint("Angle", 3, Q("-16 deg")),
    Sketcher.Constraint("DistanceY", 2, 2, -1, 1, Q("1.4 mm")),
    Sketcher.Constraint("DistanceY", 3, 2, -1, 1, Q("1.597631 mm")),
    Sketcher.Constraint("DistanceY", 4, 2, -1, 1, Q("1.677759 mm")),
    Sketcher.Constraint("Distance", 0, Q("0.808834 mm")),
])
pocket14 = body.newObject("PartDesign::Pocket", "Pocket013")
pocket14.Profile = sketch15
pocket14.Type = "ThroughAll"
pocket14.Reversed = True

# Sketch on YZ plane
sketch16 = body.newObject("Sketcher::SketchObject", "Sketch015")
sketch16.AttachmentSupport = (doc.getObject("YZ_Plane"), [""])
sketch16.MapMode = "FlatFace"
sketch16.AttachmentOffset = App.Placement(V(0, 0, -2.5), App.Rotation())
sketch16.addGeometry([
    Part.LineSegment(V(4.1, -1.1, 0), V(2.9, 0, 0)),
    Part.LineSegment(V(2.9, 0, 0), V(4.1, 1.1, 0)),
    Part.ArcOfCircle(Part.Circle(V(0, 0, 0), V(0, 0, 1), 4.2), math.radians(-15), math.radians(15)),
], False)
sketch16.addConstraint([
    Sketcher.Constraint("Coincident", 0, 2, 1, 1),
    Sketcher.Constraint("Coincident", 1, 2, 2, 2),
    Sketcher.Constraint("Coincident", 2, 1, 0, 1),
    Sketcher.Constraint("Coincident", 2, 3, -1, 1),
    Sketcher.Constraint("PointOnObject", 0, 2, -1),
    Sketcher.Constraint("Vertical", 1, 2, 2, 1),
    Sketcher.Constraint("Radius", 2, Q("4.2 mm")),
    Sketcher.Constraint("Distance", 0, Q("1.614871 mm")),
    Sketcher.Constraint("DistanceX", -1, 1, 0, 2, Q("2.854375 mm")),
])
pocket15 = body.newObject("PartDesign::Pocket", "Pocket014")
pocket15.Profile = sketch16
pocket15.Type = "ThroughAll"
pocket15.Reversed = True

# Sketch on YZ plane
sketch17 = body.newObject("Sketcher::SketchObject", "Sketch016")
sketch17.AttachmentSupport = (doc.getObject("YZ_Plane"), [""])
sketch17.MapMode = "FlatFace"
sketch17.AttachmentOffset = App.Placement(V(0, 0, -2.5), App.Rotation())
sketch17.addGeometry([
    Part.LineSegment(V(2.9, 0, 0), V(3.5, -0.5, 0)),  # 0
    Part.LineSegment(V(3.5, -0.5, 0), V(2.8, -0.3, 0)),  # 1
    Part.ArcOfCircle(Part.Circle(V(0, 0, 0), V(0, 0, 1), 2.8), math.radians(-6), math.radians(6)),  # 2
    Part.LineSegment(V(2.8, 0.3, 0), V(3.5, 0.5, 0)),  # 3
    Part.LineSegment(V(3.5, 0.5, 0), V(2.9, 0, 0)),  # 4
], False)
sketch17.addConstraint([
    Sketcher.Constraint("Coincident", 0, 2, 1, 1),
    Sketcher.Constraint("Coincident", 1, 2, 2, 1),
    Sketcher.Constraint("Coincident", 2, 2, 3, 1),
    Sketcher.Constraint("Coincident", 3, 2, 4, 1),
    Sketcher.Constraint("Coincident", 4, 2, 0, 1),
    Sketcher.Constraint("Coincident", 2, 3, -1, 1),
    Sketcher.Constraint("Symmetric", 0, 2, 3, 2, -1),
    Sketcher.Constraint("PointOnObject", 4, 2, -1),
    Sketcher.Constraint("Vertical", 1, 2, 2, 2),
    Sketcher.Constraint("Radius", 2, Q("2.8 mm")),
    Sketcher.Constraint("Angle", 1, Q("160 deg")),
    Sketcher.Constraint("DistanceX", -1, 1, 0, 2, Q("3.458418 mm")),
    Sketcher.Constraint("DistanceX", -1, 1, 1, 2, Q("2.784661 mm")),
    Sketcher.Constraint("Distance", 0, Q("0.808834 mm")),
])
pocket16 = body.newObject("PartDesign::Pocket", "Pocket015")
pocket16.Profile = sketch17
pocket16.Type = "ThroughAll"
pocket16.Reversed = True

# Sketch on YZ plane
sketch18 = body.newObject("Sketcher::SketchObject", "Sketch017")
sketch18.AttachmentSupport = (doc.getObject("YZ_Plane"), [""])
sketch18.MapMode = "FlatFace"
sketch18.AttachmentOffset = App.Placement(V(0, 0, -2.5), App.Rotation())
sketch18.addGeometry([
    Part.LineSegment(V(3.9, 1.5, 0), V(2.3, 1.7, 0)),
    Part.LineSegment(V(2.3, 1.7, 0), V(2.7, 3.3, 0)),
    Part.ArcOfCircle(Part.Circle(V(0, 0, 0), V(0, 0, 1), 4.2), math.radians(21), math.radians(51)),
], False)
sketch18.addConstraint([
    Sketcher.Constraint("Coincident", 0, 2, 1, 1),
    Sketcher.Constraint("Coincident", 1, 2, 2, 2),
    Sketcher.Constraint("Coincident", 2, 1, 0, 1),
    Sketcher.Constraint("Coincident", 2, 3, -1, 1),
    Sketcher.Constraint("Equal", 0, 1),
    Sketcher.Constraint("Radius", 2, Q("4.2 mm")),
    Sketcher.Constraint("Distance", 0, Q("1.614871 mm")),
    Sketcher.Constraint("DistanceY", -1, 1, 0, 2, Q("1.677759 mm")),
    Sketcher.Constraint("DistanceY", -1, 1, 2, 1, Q("1.51778 mm")),
])
pocket17 = body.newObject("PartDesign::Pocket", "Pocket016")
pocket17.Profile = sketch18
pocket17.Type = "ThroughAll"
pocket17.Reversed = True

# Sketch on YZ plane
sketch19 = body.newObject("Sketcher::SketchObject", "Sketch018")
sketch19.AttachmentSupport = (doc.getObject("YZ_Plane"), [""])
sketch19.MapMode = "FlatFace"
sketch19.AttachmentOffset = App.Placement(V(0, 0, -2.5), App.Rotation())
sketch19.addGeometry([
    Part.LineSegment(V(2.3, 1.7, 0), V(3.1, 1.6, 0)),  # 0
    Part.LineSegment(V(3.1, 1.6, 0), V(2.4, 1.4, 0)),  # 1
    Part.ArcOfCircle(Part.Circle(V(0, 0, 0), V(0, 0, 1), 2.8), math.radians(30), math.radians(42)),  # 2
    Part.LineSegment(V(2.1, 1.9, 0), V(2.5, 2.5, 0)),  # 3
    Part.LineSegment(V(2.5, 2.5, 0), V(2.3, 1.7, 0)),  # 4
], False)
sketch19.addConstraint([
    Sketcher.Constraint("Coincident", 0, 2, 1, 1),
    Sketcher.Constraint("Coincident", 1, 2, 2, 1),
    Sketcher.Constraint("Coincident", 2, 2, 3, 1),
    Sketcher.Constraint("Coincident", 3, 2, 4, 1),
    Sketcher.Constraint("Coincident", 4, 2, 0, 1),
    Sketcher.Constraint("Coincident", 2, 3, -1, 1),
    Sketcher.Constraint("Equal", 1, 3),
    Sketcher.Constraint("Equal", 0, 4),
    Sketcher.Constraint("Radius", 2, Q("2.8 mm")),
    Sketcher.Constraint("Angle", 1, Q("-164 deg")),
    Sketcher.Constraint("Angle", 3, Q("56 deg")),
    Sketcher.Constraint("DistanceY", -1, 1, 1, 2, Q("1.4 mm")),
    Sketcher.Constraint("DistanceY", -1, 1, 0, 2, Q("1.597631 mm")),
    Sketcher.Constraint("DistanceY", -1, 1, 4, 2, Q("1.677759 mm")),
    Sketcher.Constraint("Distance", 0, Q("0.808834 mm")),
])
pocket18 = body.newObject("PartDesign::Pocket", "Pocket017")
pocket18.Profile = sketch19
pocket18.Type = "ThroughAll"
pocket18.Reversed = True

# Sketch on YZ plane
sketch20 = body.newObject("Sketcher::SketchObject", "Sketch019")
sketch20.AttachmentSupport = (doc.getObject("YZ_Plane"), [""])
sketch20.MapMode = "FlatFace"
sketch20.AttachmentOffset = App.Placement(V(0, 0, -2.5), App.Rotation())
sketch20.addGeometry([
    Part.LineSegment(V(2.3, 3.5, 0), V(0.9, 2.7, 0)),
    Part.LineSegment(V(0.9, 2.7, 0), V(0.2, 4.2, 0)),
    Part.ArcOfCircle(Part.Circle(V(0, 0, 0), V(0, 0, 1), 4.2), math.radians(57), math.radians(87)),
], False)
sketch20.addConstraint([
    Sketcher.Constraint("Coincident", 0, 2, 1, 1),
    Sketcher.Constraint("Coincident", 1, 2, 2, 2),
    Sketcher.Constraint("Coincident", 2, 1, 0, 1),
    Sketcher.Constraint("Coincident", 2, 3, -1, 1),
    Sketcher.Constraint("Equal", 0, 1),
    Sketcher.Constraint("Radius", 2, Q("4.2 mm")),
    Sketcher.Constraint("DistanceY", 0, 2, 2, 1, Q("0.815102 mm")),
    Sketcher.Constraint("Distance", 0, Q("1.614871 mm")),
    Sketcher.Constraint("DistanceX", -1, 1, 0, 2, Q("0.88205 mm")),
])
pocket19 = body.newObject("PartDesign::Pocket", "Pocket018")
pocket19.Profile = sketch20
pocket19.Type = "ThroughAll"
pocket19.Reversed = True

# Sketch on YZ plane
sketch21 = body.newObject("Sketcher::SketchObject", "Sketch020")
sketch21.AttachmentSupport = (doc.getObject("YZ_Plane"), [""])
sketch21.MapMode = "FlatFace"
sketch21.AttachmentOffset = App.Placement(V(0, 0, -2.5), App.Rotation())
sketch21.addGeometry([
    Part.LineSegment(V(0.9, 2.7, 0), V(1.6, 3.1, 0)),  # 0
    Part.LineSegment(V(1.6, 3.1, 0), V(1.1, 2.6, 0)),  # 1
    Part.ArcOfCircle(Part.Circle(V(0, 0, 0), V(0, 0, 1), 2.8), math.radians(66), math.radians(78)),  # 2
    Part.LineSegment(V(0.6, 2.7, 0), V(0.6, 3.5, 0)),  # 3
    Part.LineSegment(V(0.6, 3.5, 0), V(0.9, 2.7, 0)),  # 4
], False)
sketch21.addConstraint([
    Sketcher.Constraint("Coincident", 0, 2, 1, 1),
    Sketcher.Constraint("Coincident", 1, 2, 2, 1),
    Sketcher.Constraint("Coincident", 2, 2, 3, 1),
    Sketcher.Constraint("Coincident", 3, 2, 4, 1),
    Sketcher.Constraint("Coincident", 4, 2, 0, 1),
    Sketcher.Constraint("Coincident", 2, 3, -1, 1),
    Sketcher.Constraint("Equal", 1, 3),
    Sketcher.Constraint("Equal", 0, 4),
    Sketcher.Constraint("Radius", 2, Q("2.8 mm")),
    Sketcher.Constraint("Angle", 1, Q("-128 deg")),
    Sketcher.Constraint("Angle", 3, Q("92 deg")),
    Sketcher.Constraint("DistanceY", 1, 2, 0, 2, Q("0.565001 mm")),
    Sketcher.Constraint("DistanceY", 4, 2, 3, 2, Q("0.740702 mm")),
    Sketcher.Constraint("DistanceX", -1, 1, 0, 2, Q("1.58029 mm")),
    Sketcher.Constraint("DistanceX", -1, 1, 3, 2, Q("0.55713 mm")),
])
pocket20 = body.newObject("PartDesign::Pocket", "Pocket019")
pocket20.Profile = sketch21
pocket20.Type = "ThroughAll"
pocket20.Reversed = True

# Sketch on XY plane
sketch22 = body.newObject("Sketcher::SketchObject", "Sketch021")
sketch22.AttachmentSupport = (doc.getObject("XY_Plane"), [""])
sketch22.MapMode = "FlatFace"
sketch22.addGeometry([
    Part.LineSegment(V(6.6, 2.5, 0), V(6.6, 0, 0)),
    Part.LineSegment(V(6.6, 0, 0), V(2.5, 0, 0)),
    Part.LineSegment(V(2.5, 0, 0), V(2.5, 2.5, 0)),
    Part.LineSegment(V(2.5, 2.5, 0), V(6.6, 2.5, 0)),
], False)
sketch22.addConstraint([
    Sketcher.Constraint("Coincident", 0, 2, 1, 1),
    Sketcher.Constraint("Coincident", 1, 2, 2, 1),
    Sketcher.Constraint("Coincident", 2, 2, 3, 1),
    Sketcher.Constraint("Coincident", 3, 2, 0, 1),
    Sketcher.Constraint("Vertical", 0),
    Sketcher.Constraint("Horizontal", 1),
    Sketcher.Constraint("Vertical", 2),
    Sketcher.Constraint("Horizontal", 3),
    Sketcher.Constraint("PointOnObject", 0, 2, -1),
    Sketcher.Constraint("DistanceY", 0, 2, 0, 1, Q("2.5 mm")),
    Sketcher.Constraint("DistanceX", 1, 2, 1, 1, Q("4.14 mm")),
    Sketcher.Constraint("DistanceX", -1, 1, 1, 2, Q("2.5 mm")),
])
revolution2 = body.newObject("PartDesign::Revolution", "Revolution001")
revolution2.Profile = sketch22
revolution2.ReferenceAxis = (sketch22, ["H_Axis"])
revolution2.Angle = 360

# Sketch on YZ plane
sketch23 = body.newObject("Sketcher::SketchObject", "Sketch022")
sketch23.AttachmentSupport = (doc.getObject("YZ_Plane"), [""])
sketch23.MapMode = "FlatFace"
sketch23.AttachmentOffset = App.Placement(V(0, 0, -2.5), App.Rotation())
sketch23.addGeometry(Part.Circle(V(0, 0, 0), V(0, 0, 1), 1.5), False)
sketch23.addConstraint([
    Sketcher.Constraint("Coincident", 0, 3, -1, 1),
    Sketcher.Constraint("Diameter", 0, Q("3 mm")),
])
pocket21 = body.newObject("PartDesign::Pocket", "Pocket020")
pocket21.Profile = sketch23
pocket21.Length = 10
pocket21.Reversed = True

# Sketch on YZ plane
sketch24 = body.newObject("Sketcher::SketchObject", "Sketch023")
sketch24.AttachmentSupport = (doc.getObject("YZ_Plane"), [""])
sketch24.MapMode = "FlatFace"
sketch24.AttachmentOffset = App.Placement(V(0, 0, -2.5), App.Rotation())
sketch24.addGeometry([
    Part.ArcOfCircle(Part.Circle(V(0, 0, 0), V(0, 0, 1), 1.5), math.radians(-141), math.radians(-39)),
    Part.LineSegment(V(-1.2, -0.9, 0), V(1.2, -0.9, 0)),
], False)
sketch24.addConstraint([
    Sketcher.Constraint("Coincident", 0, 1, 1, 1),
    Sketcher.Constraint("Coincident", 1, 2, 0, 2),
    Sketcher.Constraint("Horizontal", 1),
    Sketcher.Constraint("Coincident", 0, 3, -1, 1),
    Sketcher.Constraint("Radius", 0, Q("1.5 mm")),
    Sketcher.Constraint("DistanceY", 0, 1, -1, 1, Q("0.95 mm")),
])
pad1 = body.newObject("PartDesign::Pad", "Pad")
pad1.Profile = sketch24
pad1.Length = 9.14

doc.recompute()
